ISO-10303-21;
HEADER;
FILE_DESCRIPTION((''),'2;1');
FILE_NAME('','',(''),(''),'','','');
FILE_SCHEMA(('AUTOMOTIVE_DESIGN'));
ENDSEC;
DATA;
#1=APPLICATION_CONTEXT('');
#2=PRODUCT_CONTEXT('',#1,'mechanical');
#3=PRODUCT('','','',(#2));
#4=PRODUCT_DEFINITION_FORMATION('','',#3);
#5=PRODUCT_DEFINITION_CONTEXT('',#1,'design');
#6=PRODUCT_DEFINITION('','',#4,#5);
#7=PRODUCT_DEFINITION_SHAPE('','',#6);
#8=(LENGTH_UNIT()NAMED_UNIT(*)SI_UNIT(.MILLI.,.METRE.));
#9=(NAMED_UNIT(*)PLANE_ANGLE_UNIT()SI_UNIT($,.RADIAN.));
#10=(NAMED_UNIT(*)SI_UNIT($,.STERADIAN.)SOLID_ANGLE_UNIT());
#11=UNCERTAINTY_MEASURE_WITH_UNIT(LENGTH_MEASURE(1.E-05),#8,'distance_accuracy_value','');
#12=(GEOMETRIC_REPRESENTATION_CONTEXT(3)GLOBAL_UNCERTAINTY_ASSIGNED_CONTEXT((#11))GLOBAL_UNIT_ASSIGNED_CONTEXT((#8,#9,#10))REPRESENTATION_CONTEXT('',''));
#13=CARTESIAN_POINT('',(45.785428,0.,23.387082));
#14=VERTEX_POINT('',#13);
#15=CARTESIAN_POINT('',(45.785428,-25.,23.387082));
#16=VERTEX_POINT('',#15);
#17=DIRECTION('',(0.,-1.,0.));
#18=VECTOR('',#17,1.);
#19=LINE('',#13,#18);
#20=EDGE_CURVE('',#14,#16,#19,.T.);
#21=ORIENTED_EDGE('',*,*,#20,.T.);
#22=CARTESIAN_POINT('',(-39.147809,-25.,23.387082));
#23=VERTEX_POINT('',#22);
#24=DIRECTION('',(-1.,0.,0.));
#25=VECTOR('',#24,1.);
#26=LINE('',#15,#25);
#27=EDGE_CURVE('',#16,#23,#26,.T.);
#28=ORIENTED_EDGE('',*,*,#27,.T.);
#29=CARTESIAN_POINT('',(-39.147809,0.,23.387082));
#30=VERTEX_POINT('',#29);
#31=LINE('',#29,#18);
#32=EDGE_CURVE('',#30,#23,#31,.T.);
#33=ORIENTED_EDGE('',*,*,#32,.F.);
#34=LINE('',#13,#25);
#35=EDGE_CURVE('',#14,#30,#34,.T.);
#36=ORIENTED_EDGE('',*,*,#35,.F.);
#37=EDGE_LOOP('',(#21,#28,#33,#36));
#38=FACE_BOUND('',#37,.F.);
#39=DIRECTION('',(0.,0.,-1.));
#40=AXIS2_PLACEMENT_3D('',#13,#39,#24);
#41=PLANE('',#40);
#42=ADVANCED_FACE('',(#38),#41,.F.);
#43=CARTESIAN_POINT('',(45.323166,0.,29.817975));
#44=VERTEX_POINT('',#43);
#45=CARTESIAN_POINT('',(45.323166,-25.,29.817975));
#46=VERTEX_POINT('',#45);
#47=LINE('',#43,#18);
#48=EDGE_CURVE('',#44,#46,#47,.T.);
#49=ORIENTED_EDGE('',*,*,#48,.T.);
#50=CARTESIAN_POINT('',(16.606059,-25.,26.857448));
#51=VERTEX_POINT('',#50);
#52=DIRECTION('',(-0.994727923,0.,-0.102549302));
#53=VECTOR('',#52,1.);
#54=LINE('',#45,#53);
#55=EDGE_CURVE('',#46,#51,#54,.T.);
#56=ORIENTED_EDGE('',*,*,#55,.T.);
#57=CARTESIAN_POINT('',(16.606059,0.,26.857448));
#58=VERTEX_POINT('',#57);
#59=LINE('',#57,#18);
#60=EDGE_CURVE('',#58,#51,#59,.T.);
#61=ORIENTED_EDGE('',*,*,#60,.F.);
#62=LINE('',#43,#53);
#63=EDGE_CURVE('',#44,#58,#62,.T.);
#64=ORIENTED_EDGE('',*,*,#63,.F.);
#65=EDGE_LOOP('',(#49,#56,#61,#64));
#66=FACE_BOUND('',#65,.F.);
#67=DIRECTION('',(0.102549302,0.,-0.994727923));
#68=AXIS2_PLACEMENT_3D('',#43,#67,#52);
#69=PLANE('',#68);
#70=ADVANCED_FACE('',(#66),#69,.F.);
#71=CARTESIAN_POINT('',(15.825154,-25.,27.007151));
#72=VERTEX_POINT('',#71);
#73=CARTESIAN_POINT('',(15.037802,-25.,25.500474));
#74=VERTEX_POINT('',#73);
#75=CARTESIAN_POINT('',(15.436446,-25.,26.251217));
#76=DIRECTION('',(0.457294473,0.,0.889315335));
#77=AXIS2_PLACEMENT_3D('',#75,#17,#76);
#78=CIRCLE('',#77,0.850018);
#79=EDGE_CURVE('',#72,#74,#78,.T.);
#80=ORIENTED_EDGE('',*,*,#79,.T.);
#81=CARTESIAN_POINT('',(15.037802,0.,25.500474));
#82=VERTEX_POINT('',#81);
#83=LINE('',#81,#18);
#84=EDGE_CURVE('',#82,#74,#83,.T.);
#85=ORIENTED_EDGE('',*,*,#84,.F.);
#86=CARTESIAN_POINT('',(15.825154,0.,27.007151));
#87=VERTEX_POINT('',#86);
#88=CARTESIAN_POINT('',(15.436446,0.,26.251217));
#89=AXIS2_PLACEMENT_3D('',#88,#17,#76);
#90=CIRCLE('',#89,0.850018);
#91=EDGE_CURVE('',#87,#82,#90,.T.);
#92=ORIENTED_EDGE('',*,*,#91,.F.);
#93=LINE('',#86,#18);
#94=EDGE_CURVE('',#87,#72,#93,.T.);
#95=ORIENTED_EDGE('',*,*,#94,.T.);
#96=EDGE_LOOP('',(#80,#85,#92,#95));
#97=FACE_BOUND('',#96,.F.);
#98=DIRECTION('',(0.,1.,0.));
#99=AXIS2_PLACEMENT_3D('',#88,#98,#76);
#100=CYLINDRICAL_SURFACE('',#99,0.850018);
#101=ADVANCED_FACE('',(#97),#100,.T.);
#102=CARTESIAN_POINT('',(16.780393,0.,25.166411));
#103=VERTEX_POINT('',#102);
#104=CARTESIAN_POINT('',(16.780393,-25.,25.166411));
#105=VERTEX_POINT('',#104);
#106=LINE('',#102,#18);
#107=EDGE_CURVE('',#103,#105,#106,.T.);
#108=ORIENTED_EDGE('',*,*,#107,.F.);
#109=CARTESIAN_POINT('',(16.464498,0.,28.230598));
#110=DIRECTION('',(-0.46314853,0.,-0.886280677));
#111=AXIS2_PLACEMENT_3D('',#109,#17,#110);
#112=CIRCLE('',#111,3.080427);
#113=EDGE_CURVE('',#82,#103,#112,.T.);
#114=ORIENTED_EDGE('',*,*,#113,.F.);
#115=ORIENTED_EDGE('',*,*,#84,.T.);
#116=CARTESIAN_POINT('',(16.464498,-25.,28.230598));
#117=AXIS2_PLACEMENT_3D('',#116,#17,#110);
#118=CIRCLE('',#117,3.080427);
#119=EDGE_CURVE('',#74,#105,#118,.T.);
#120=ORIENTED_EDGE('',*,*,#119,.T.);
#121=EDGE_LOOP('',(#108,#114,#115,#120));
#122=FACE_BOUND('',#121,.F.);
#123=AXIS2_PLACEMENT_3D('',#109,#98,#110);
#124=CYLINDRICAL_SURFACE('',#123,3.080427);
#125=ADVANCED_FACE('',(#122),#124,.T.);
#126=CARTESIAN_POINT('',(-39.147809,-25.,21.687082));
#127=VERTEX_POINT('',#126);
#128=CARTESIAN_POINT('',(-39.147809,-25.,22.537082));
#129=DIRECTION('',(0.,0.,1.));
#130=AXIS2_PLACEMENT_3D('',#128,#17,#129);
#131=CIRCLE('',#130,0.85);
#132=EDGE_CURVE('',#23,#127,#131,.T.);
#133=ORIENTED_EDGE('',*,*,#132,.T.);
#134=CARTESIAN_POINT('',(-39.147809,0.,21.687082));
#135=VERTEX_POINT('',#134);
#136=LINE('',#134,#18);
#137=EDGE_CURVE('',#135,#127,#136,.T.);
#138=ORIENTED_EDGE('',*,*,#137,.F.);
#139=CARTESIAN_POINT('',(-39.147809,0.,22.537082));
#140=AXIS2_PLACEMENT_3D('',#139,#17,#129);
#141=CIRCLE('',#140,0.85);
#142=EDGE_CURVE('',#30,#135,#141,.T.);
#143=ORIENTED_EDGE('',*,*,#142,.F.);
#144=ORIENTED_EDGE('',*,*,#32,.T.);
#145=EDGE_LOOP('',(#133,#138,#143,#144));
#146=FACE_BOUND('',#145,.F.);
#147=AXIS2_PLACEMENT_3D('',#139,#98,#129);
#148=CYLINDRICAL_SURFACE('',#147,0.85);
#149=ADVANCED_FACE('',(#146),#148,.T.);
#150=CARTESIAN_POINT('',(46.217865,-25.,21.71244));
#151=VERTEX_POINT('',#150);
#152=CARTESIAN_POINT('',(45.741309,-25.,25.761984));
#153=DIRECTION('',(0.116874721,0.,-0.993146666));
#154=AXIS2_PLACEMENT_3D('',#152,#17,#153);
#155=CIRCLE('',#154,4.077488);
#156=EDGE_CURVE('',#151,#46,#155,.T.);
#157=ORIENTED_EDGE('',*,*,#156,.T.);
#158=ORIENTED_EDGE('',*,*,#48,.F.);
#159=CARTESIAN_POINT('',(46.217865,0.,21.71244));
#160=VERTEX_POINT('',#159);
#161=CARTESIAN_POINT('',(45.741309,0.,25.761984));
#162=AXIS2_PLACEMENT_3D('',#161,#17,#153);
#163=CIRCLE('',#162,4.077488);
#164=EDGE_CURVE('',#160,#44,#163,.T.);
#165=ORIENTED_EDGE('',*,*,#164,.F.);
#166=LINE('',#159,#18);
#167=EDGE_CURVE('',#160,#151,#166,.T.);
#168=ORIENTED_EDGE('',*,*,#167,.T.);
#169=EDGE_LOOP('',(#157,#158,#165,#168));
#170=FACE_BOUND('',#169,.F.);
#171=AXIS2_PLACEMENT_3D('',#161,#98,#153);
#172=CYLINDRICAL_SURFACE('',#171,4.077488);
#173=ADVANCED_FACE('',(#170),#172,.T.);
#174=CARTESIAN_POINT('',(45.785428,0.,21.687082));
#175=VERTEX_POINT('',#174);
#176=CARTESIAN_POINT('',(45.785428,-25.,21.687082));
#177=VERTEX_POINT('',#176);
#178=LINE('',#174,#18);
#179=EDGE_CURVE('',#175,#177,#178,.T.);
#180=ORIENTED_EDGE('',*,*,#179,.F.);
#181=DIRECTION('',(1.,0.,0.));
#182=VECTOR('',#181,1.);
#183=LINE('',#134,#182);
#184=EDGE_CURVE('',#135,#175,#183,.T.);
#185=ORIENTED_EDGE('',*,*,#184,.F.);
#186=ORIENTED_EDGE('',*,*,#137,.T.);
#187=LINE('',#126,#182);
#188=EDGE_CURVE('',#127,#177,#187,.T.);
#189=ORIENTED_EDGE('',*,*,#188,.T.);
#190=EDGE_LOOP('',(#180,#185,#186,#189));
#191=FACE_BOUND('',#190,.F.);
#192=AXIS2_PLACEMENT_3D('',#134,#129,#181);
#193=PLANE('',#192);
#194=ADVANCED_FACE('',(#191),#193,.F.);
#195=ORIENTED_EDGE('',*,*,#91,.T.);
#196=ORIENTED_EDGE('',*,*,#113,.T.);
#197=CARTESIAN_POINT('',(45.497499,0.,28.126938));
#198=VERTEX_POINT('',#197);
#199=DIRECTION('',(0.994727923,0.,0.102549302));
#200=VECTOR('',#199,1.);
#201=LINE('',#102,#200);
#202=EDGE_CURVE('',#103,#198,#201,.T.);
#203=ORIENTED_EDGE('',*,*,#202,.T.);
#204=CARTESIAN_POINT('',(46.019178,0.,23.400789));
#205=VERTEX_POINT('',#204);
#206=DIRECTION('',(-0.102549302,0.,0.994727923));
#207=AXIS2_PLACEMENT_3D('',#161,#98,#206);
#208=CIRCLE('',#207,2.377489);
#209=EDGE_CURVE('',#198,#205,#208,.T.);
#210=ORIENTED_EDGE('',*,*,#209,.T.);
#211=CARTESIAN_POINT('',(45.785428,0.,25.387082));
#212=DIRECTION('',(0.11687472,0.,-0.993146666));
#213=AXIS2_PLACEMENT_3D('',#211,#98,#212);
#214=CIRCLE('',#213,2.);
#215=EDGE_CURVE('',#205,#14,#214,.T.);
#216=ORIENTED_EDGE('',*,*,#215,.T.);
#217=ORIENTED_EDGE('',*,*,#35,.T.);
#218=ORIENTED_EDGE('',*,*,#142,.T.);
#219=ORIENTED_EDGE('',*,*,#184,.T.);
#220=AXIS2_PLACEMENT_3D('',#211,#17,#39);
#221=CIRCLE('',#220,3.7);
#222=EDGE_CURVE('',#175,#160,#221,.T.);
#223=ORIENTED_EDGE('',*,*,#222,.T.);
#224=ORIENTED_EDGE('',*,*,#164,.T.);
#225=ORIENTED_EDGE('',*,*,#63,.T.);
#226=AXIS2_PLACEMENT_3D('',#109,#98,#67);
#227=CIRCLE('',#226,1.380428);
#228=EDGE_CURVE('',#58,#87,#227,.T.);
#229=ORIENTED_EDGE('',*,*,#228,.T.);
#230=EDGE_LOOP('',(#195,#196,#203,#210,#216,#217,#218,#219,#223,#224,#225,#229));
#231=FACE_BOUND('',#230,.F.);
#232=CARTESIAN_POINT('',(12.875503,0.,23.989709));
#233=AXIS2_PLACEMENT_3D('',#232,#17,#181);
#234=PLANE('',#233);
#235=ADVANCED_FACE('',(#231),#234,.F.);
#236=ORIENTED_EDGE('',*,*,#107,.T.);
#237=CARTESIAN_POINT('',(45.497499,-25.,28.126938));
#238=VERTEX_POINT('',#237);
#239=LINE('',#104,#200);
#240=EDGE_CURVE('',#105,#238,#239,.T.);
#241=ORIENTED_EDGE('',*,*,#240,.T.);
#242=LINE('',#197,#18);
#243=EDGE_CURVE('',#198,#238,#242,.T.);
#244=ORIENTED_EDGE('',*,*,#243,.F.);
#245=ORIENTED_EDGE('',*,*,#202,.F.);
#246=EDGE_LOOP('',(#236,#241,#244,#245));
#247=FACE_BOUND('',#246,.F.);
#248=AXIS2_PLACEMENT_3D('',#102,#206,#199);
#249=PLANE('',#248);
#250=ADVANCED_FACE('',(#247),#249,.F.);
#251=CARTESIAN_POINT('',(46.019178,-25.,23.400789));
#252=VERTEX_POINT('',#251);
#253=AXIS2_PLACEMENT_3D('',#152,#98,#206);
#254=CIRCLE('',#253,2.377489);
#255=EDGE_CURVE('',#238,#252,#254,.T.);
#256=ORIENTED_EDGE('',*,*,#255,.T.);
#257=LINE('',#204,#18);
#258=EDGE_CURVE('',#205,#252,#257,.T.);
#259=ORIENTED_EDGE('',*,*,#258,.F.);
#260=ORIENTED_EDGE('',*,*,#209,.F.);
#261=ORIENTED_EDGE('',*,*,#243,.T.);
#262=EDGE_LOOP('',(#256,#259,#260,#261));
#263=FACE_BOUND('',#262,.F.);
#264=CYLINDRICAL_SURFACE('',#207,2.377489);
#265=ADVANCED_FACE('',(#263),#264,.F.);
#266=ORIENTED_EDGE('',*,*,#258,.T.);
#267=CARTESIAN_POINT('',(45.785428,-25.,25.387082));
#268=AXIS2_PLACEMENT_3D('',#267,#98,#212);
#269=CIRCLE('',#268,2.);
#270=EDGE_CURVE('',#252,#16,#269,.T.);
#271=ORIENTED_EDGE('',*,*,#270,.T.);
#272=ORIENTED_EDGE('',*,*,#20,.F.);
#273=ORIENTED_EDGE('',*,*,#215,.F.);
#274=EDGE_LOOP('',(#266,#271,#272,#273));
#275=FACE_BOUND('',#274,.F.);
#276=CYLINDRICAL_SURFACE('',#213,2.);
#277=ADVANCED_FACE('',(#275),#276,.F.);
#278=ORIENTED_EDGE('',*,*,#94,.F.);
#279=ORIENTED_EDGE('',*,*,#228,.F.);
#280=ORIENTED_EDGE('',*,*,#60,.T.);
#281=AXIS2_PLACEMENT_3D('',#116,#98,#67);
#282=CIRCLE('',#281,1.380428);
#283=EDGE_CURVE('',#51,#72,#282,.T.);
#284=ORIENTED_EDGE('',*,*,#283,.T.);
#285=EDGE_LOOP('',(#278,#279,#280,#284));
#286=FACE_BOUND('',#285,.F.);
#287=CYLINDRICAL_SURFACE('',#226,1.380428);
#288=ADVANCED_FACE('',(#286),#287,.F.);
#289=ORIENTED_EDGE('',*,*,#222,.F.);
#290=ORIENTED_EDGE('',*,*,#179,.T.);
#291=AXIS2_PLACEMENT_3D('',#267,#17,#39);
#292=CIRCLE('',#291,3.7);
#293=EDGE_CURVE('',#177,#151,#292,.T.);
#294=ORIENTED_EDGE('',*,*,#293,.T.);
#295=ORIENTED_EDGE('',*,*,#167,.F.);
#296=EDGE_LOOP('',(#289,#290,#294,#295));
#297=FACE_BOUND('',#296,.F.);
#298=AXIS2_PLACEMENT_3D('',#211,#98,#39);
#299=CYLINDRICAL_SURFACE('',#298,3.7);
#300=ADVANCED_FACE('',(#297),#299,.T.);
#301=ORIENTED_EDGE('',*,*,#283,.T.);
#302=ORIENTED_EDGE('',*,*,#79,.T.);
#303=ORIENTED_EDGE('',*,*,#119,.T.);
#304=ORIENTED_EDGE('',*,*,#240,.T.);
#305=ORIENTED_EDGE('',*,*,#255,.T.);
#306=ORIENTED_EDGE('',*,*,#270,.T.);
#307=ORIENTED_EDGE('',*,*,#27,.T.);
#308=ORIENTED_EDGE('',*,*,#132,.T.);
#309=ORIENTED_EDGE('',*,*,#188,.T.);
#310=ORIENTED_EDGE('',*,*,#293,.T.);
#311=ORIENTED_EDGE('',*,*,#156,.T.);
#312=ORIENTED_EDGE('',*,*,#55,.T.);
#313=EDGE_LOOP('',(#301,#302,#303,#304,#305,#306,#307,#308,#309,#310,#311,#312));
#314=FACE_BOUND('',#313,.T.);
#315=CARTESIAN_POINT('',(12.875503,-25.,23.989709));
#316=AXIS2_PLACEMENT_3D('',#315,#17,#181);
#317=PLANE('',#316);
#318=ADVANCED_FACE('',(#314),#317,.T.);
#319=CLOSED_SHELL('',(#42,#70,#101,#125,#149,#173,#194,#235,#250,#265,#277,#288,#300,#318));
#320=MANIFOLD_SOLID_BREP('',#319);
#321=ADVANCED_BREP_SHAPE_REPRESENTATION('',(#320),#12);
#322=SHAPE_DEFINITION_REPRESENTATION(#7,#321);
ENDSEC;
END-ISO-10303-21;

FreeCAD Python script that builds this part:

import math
import FreeCAD as App
import Part
import Sketcher
from FreeCAD import Vector

doc = App.newDocument("Part")
body = doc.addObject("PartDesign::Body", "Body")

# Sketch on XZ plane
sketch1 = doc.addObject("Sketcher::SketchObject", "Sketch")
body.addObject(sketch1)
sketch1.AttachmentSupport = (doc.XZ_Plane, [""])
sketch1.MapMode = "FlatFace"
sketch1.addGeometry([
    Part.LineSegment(Vector(45.785428, 23.387082, 0), Vector(-39.147809, 23.387082, 0)),  # 0
    Part.ArcOfCircle(Part.Circle(Vector(-39.147809, 22.537082, 0), Vector(0, 0, 1), 0.85), math.radians(90), math.radians(270)),  # 1
    Part.LineSegment(Vector(-39.147809, 21.687082, 0), Vector(45.785428, 21.687082, 0)),  # 2
    Part.ArcOfCircle(Part.Circle(Vector(45.785428, 25.387082, 0), Vector(0, 0, 1), 3.7), math.radians(-90), math.radians(-83.288232)),  # 3
    Part.ArcOfCircle(Part.Circle(Vector(45.741309, 25.761984, 0), Vector(0, 0, 1), 4.077488), math.radians(-83.288232), math.radians(95.88599)),  # 4
    Part.LineSegment(Vector(45.323166, 29.817975, 0), Vector(16.606059, 26.857448, 0)),  # 5
    Part.ArcOfCircle(Part.Circle(Vector(16.464498, 28.230598, 0), Vector(0, 0, 1), 1.380428), math.radians(-117.590464), math.radians(-84.11401)),  # 6
    Part.ArcOfCircle(Part.Circle(Vector(15.436446, 26.251217, 0), Vector(0, 0, 1), 0.850018), math.radians(62.787338), math.radians(242.031735)),  # 7
    Part.ArcOfCircle(Part.Circle(Vector(16.464498, 28.230598, 0), Vector(0, 0, 1), 3.080427), math.radians(-117.590464), math.radians(-84.11401)),  # 8
    Part.LineSegment(Vector(16.780393, 25.166411, 0), Vector(45.497499, 28.126938, 0)),  # 9
    Part.ArcOfCircle(Part.Circle(Vector(45.741309, 25.761984, 0), Vector(0, 0, 1), 2.377489), math.radians(-83.288232), math.radians(95.88599)),  # 10
    Part.ArcOfCircle(Part.Circle(Vector(45.785428, 25.387082, 0), Vector(0, 0, 1), 2), math.radians(-90), math.radians(-83.288232)),  # 11
], False)
sketch1.addConstraint([
    Sketcher.Constraint("Coincident", 0, 2, 1, 1),
    Sketcher.Constraint("Coincident", 1, 2, 2, 1),
    Sketcher.Constraint("Coincident", 2, 2, 3, 1),
    Sketcher.Constraint("Coincident", 3, 2, 4, 1),
    Sketcher.Constraint("Coincident", 4, 2, 5, 1),
    Sketcher.Constraint("Coincident", 5, 2, 6, 2),
    Sketcher.Constraint("Coincident", 6, 1, 7, 1),
    Sketcher.Constraint("Coincident", 7, 2, 8, 1),
    Sketcher.Constraint("Coincident", 8, 2, 9, 1),
    Sketcher.Constraint("Coincident", 9, 2, 10, 2),
    Sketcher.Constraint("Coincident", 10, 1, 11, 2),
    Sketcher.Constraint("Coincident", 11, 1, 0, 1),
    Sketcher.Constraint("Horizontal", 0),
    Sketcher.Constraint("Horizontal", 2),
    Sketcher.Constraint("Coincident", 8, 3, 6, 3),
    Sketcher.Constraint("Coincident", 10, 3, 4, 3),
    Sketcher.Constraint("Coincident", 11, 3, 3, 3),
    Sketcher.Constraint("Radius", 11, 2.0),
    Sketcher.Constraint("Radius", 3, 3.7),
    Sketcher.Constraint("Radius", 4, 4.077488),
    Sketcher.Constraint("Radius", 7, 0.850018),
    Sketcher.Constraint("Radius", 6, 1.380428),
    Sketcher.Constraint("Radius", 8, 3.080427),
    Sketcher.Constraint("DistanceX", -1, 1, 9, 2, 45.497499),
    Sketcher.Constraint("DistanceY", 3, 3, 4, 3, 0.374902),
    Sketcher.Constraint("DistanceX", 0, 2, 0, 1, 84.933237),
    Sketcher.Constraint("DistanceX", 2, 1, 2, 2, 84.933237),
    Sketcher.Constraint("DistanceX", 1, 3, -1, 1, 39.147809),
    Sketcher.Constraint("DistanceX", -1, 1, 3, 3, 45.785428),
    Sketcher.Constraint("DistanceX", 0, 2, -1, 1, 39.147809),
    Sketcher.Constraint("DistanceX", 1, 2, -1, 1, 39.147809),
    Sketcher.Constraint("DistanceY", -1, 1, 3, 2, 21.71244),
    Sketcher.Constraint("DistanceX", -1, 1, 5, 2, 16.606059),
    Sketcher.Constraint("DistanceY", -1, 1, 6, 1, 27.007151),
    Sketcher.Constraint("DistanceY", -1, 1, 8, 2, 25.166411),
    Sketcher.Constraint("DistanceY", -1, 1, 10, 1, 23.400789),
    Sketcher.Constraint("DistanceX", 6, 3, 4, 3, 29.276812),
    Sketcher.Constraint("DistanceX", 7, 3, 6, 3, 1.028052),
    Sketcher.Constraint("DistanceY", 4, 3, 4, 2, 4.055992),
    Sketcher.Constraint("DistanceX", 7, 3, 6, 1, 0.388709),
    Sketcher.Constraint("DistanceX", 2, 2, 10, 1, 0.233749),
])
pad1 = doc.addObject("PartDesign::Pad", "Pad")
body.addObject(pad1)
pad1.Profile = sketch1
pad1.Length = 25

doc.recompute()
